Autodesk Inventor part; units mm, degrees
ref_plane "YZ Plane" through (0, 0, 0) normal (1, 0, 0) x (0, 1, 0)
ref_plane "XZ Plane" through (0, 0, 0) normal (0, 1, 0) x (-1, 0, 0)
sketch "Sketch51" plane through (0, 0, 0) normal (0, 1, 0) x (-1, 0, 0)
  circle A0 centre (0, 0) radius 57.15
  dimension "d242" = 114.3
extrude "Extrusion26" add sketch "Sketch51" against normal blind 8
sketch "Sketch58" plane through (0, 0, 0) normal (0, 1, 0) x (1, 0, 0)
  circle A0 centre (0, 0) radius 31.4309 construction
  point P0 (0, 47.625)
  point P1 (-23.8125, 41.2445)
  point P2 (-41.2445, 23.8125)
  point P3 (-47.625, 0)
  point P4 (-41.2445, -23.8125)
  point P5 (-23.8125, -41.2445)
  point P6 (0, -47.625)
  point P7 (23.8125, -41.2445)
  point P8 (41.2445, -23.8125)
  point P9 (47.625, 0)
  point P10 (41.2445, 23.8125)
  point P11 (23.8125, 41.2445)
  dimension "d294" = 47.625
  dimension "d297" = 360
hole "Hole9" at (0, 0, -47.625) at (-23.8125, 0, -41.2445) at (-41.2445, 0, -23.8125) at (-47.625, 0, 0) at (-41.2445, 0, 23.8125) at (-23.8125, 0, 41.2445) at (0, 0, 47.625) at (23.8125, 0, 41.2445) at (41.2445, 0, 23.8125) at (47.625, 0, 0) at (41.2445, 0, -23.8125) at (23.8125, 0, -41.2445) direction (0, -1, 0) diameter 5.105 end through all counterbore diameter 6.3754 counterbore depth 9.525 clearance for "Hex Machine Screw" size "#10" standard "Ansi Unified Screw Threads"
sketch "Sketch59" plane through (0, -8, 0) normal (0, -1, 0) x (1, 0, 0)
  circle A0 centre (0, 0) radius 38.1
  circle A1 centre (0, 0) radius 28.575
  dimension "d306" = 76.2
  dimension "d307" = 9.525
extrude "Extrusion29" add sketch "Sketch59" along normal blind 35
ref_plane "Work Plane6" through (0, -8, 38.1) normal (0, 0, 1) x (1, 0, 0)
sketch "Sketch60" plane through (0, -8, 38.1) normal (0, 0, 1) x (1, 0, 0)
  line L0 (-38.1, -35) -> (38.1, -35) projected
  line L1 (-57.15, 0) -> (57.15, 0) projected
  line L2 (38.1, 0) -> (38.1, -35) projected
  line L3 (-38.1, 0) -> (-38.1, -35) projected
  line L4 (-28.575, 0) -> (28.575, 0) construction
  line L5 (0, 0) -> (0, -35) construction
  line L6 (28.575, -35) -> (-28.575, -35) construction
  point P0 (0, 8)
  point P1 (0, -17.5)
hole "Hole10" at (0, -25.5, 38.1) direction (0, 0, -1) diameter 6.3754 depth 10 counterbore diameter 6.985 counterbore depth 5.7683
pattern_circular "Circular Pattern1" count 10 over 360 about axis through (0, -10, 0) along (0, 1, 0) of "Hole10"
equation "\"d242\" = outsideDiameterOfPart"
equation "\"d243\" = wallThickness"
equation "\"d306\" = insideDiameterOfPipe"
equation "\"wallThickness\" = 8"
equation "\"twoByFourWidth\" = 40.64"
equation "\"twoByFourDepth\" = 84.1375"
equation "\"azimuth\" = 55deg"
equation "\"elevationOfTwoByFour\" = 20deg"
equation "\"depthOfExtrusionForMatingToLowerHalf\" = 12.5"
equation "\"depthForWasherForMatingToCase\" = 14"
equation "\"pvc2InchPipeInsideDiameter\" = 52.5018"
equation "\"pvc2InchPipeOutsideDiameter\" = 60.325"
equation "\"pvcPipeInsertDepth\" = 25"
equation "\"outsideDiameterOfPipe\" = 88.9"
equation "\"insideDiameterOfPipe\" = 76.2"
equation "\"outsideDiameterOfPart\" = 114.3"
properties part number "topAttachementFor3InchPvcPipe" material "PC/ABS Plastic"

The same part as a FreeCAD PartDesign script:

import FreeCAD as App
import Part
import Sketcher
from FreeCAD import Vector
Q = App.Units.Quantity

doc = App.newDocument("Part")
body = doc.addObject("PartDesign::Body", "Body")

sketch1 = body.newObject("Sketcher::SketchObject", "Sketch")
sketch1.AttachmentSupport = (doc.getObject("XZ_Plane"), [""])
sketch1.MapMode = "FlatFace"
sketch1.addGeometry(Part.Circle(Vector(0, 0, 0), Vector(0, 0, 1), 57), False)
sketch1.addConstraint(Sketcher.Constraint("Coincident", 0, 3, -1, 1))
sketch1.addConstraint(Sketcher.Constraint("Diameter", 0, Q("4.5 in")))
pad1 = body.newObject("PartDesign::Pad", "Pad")
pad1.Profile = sketch1
pad1.Length = 8

sketch2 = body.newObject("Sketcher::SketchObject", "Sketch001")
sketch2.AttachmentSupport = (doc.getObject("XZ_Plane"), [""])
sketch2.MapMode = "FlatFace"
sketch2.addGeometry(Part.Circle(Vector(0, -47.6, 0), Vector(0, 0, 1), 2.6), False)
sketch2.addGeometry(Part.Circle(Vector(-23.8, -41.2, 0), Vector(0, 0, 1), 2.6), False)
sketch2.addGeometry(Part.Circle(Vector(-41.2, -23.8, 0), Vector(0, 0, 1), 2.6), False)
sketch2.addGeometry(Part.Circle(Vector(-47.6, 0, 0), Vector(0, 0, 1), 2.6), False)
sketch2.addGeometry(Part.Circle(Vector(-41.2, 23.8, 0), Vector(0, 0, 1), 2.6), False)
sketch2.addGeometry(Part.Circle(Vector(-23.8, 41.2, 0), Vector(0, 0, 1), 2.6), False)
sketch2.addGeometry(Part.Circle(Vector(0, 47.6, 0), Vector(0, 0, 1), 2.6), False)
sketch2.addGeometry(Part.Circle(Vector(23.8, 41.2, 0), Vector(0, 0, 1), 2.6), False)
sketch2.addGeometry(Part.Circle(Vector(41.2, 23.8, 0), Vector(0, 0, 1), 2.6), False)
sketch2.addGeometry(Part.Circle(Vector(47.6, 0, 0), Vector(0, 0, 1), 2.6), False)
sketch2.addGeometry(Part.Circle(Vector(41.2, -23.8, 0), Vector(0, 0, 1), 2.6), False)
sketch2.addGeometry(Part.Circle(Vector(23.8, -41.2, 0), Vector(0, 0, 1), 2.6), False)
sketch2.addConstraint(Sketcher.Constraint("Equal", 0, 1))
sketch2.addConstraint(Sketcher.Constraint("Equal", 1, 2))
sketch2.addConstraint(Sketcher.Constraint("Equal", 2, 3))
sketch2.addConstraint(Sketcher.Constraint("Equal", 3, 4))
sketch2.addConstraint(Sketcher.Constraint("Equal", 4, 5))
sketch2.addConstraint(Sketcher.Constraint("Equal", 5, 6))
sketch2.addConstraint(Sketcher.Constraint("Equal", 6, 7))
sketch2.addConstraint(Sketcher.Constraint("Equal", 7, 8))
sketch2.addConstraint(Sketcher.Constraint("Equal", 8, 9))
sketch2.addConstraint(Sketcher.Constraint("Equal", 9, 10))
sketch2.addConstraint(Sketcher.Constraint("Equal", 10, 11))
sketch2.addConstraint(Sketcher.Constraint("Symmetric", 0, 3, 6, 3, -1, 1))
sketch2.addConstraint(Sketcher.Constraint("Symmetric", 1, 3, 7, 3, -1, 1))
sketch2.addConstraint(Sketcher.Constraint("Symmetric", 2, 3, 8, 3, -1, 1))
sketch2.addConstraint(Sketcher.Constraint("Symmetric", 3, 3, 9, 3, -1, 1))
sketch2.addConstraint(Sketcher.Constraint("Symmetric", 4, 3, 10, 3, -1, 1))
sketch2.addConstraint(Sketcher.Constraint("Symmetric", 5, 3, 11, 3, -1, 1))
sketch2.addConstraint(Sketcher.Constraint("Symmetric", 5, 3, 7, 3, -2))
sketch2.addConstraint(Sketcher.Constraint("Symmetric", 4, 3, 8, 3, -2))
sketch2.addConstraint(Sketcher.Constraint("PointOnObject", 0, 3, -2))
sketch2.addConstraint(Sketcher.Constraint("PointOnObject", 3, 3, -1))
sketch2.addConstraint(Sketcher.Constraint("Diameter", 0, Q("5.105 mm")))
sketch2.addConstraint(Sketcher.Constraint("DistanceY", 0, 3, -1, 1, Q("1.875 in")))
sketch2.addConstraint(Sketcher.Constraint("DistanceX", 1, 3, -1, 1, Q("0.9375 in")))
sketch2.addConstraint(Sketcher.Constraint("DistanceY", 2, 3, -1, 1, Q("0.9375 in")))
sketch2.addConstraint(Sketcher.Constraint("DistanceX", 3, 3, -1, 1, Q("1.875 in")))
sketch2.addConstraint(Sketcher.Constraint("DistanceY", 1, 3, -1, 1, Q("1.6238 in")))
sketch2.addConstraint(Sketcher.Constraint("DistanceX", 2, 3, -1, 1, Q("1.6238 in")))
doc.recompute()
hole = body.newObject("PartDesign::Hole", "Hole")
hole.Profile = sketch2
hole.ThreadType = "None"
hole.Diameter = 5.105
hole.DepthType = "ThroughAll"
hole.HoleCutType = "Counterbore"
hole.HoleCutDiameter = Q("0.251 in")
hole.HoleCutDepth = Q("0.375 in")
hole.Reversed = True

sketch3 = body.newObject("Sketcher::SketchObject", "Sketch002")
sketch3.AttachmentSupport = (doc.getObject("XZ_Plane"), [""])
sketch3.MapMode = "FlatFace"
sketch3.AttachmentOffset = App.Placement(Vector(0, 0, 8), App.Rotation())
sketch3.addGeometry(Part.Circle(Vector(0, 0, 0), Vector(0, 0, 1), 38), False)
sketch3.addGeometry(Part.Circle(Vector(0, 0, 0), Vector(0, 0, 1), 29), False)
sketch3.addConstraint(Sketcher.Constraint("Coincident", 0, 3, -1, 1))
sketch3.addConstraint(Sketcher.Constraint("Coincident", 1, 3, -1, 1))
sketch3.addConstraint(Sketcher.Constraint("Diameter", 0, Q("3 in")))
sketch3.addConstraint(Sketcher.Constraint("Diameter", 1, Q("2.25 in")))
pad2 = body.newObject("PartDesign::Pad", "Pad001")
pad2.Profile = sketch3
pad2.Length = 35

sketch4 = body.newObject("Sketcher::SketchObject", "Sketch003")
sketch4.AttachmentSupport = (doc.getObject("XY_Plane"), [""])
sketch4.MapMode = "FlatFace"
sketch4.AttachmentOffset = App.Placement(Vector(0, 0, 1.5 * 25.4), App.Rotation())
sketch4.addGeometry(Part.Circle(Vector(0, -25.5, 0), Vector(0, 0, 1), 3.2), False)
sketch4.addConstraint(Sketcher.Constraint("PointOnObject", 0, 3, -2))
sketch4.addConstraint(Sketcher.Constraint("Diameter", 0, Q("0.251 in")))
sketch4.addConstraint(Sketcher.Constraint("DistanceY", 0, 3, -1, 1, Q("25.5 mm")))
doc.recompute()
hole2 = body.newObject("PartDesign::Hole", "Hole001")
hole2.Profile = sketch4
hole2.ThreadType = "None"
hole2.Diameter = Q("0.251 in")
hole2.DepthType = "Dimension"
hole2.Depth = Q("0.3937008 in")
hole2.DrillPoint = "Flat"
hole2.HoleCutType = "Counterbore"
hole2.HoleCutDiameter = Q("0.275 in")
hole2.HoleCutDepth = Q("0.2270984 in")
doc.recompute()

polarpattern = body.newObject("PartDesign::PolarPattern", "PolarPattern")
polarpattern.Originals = [hole2]
polarpattern.Axis = (doc.getObject("Y_Axis"), [""])
polarpattern.Angle = 360
polarpattern.Occurrences = 10
body.Tip = polarpattern

doc.recompute()
